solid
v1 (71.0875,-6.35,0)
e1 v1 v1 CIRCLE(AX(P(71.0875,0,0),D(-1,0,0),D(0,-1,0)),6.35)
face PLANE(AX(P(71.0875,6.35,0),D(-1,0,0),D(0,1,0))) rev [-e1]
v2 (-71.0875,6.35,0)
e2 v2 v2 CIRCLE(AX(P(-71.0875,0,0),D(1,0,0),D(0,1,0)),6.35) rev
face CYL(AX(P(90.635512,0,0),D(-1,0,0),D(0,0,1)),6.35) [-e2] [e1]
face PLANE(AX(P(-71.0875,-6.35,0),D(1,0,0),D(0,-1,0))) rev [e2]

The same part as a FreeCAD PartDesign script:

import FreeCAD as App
import Part
import Sketcher

V = App.Vector
Q = App.Units.Quantity

doc = App.newDocument("Part")
body = doc.addObject("PartDesign::Body", "Body")

sketch1 = body.newObject("Sketcher::SketchObject", "Sketch")
sketch1.AttachmentSupport = (doc.getObject("YZ_Plane"), [""])
sketch1.MapMode = "FlatFace"
sketch1.addGeometry(Part.Circle(V(0, 0, 0), V(0, 0, 1), 6), False)
sketch1.addConstraint([
    Sketcher.Constraint("Coincident", 0, 3, -1, 1),
    Sketcher.Constraint("Diameter", 0, Q("0.5 in")),
])
pad1 = body.newObject("PartDesign::Pad", "Pad")
pad1.Profile = sketch1
pad1.Type = "TwoLengths"
pad1.Length = 71.0875
pad1.Length2 = 71.0875

doc.recompute()
